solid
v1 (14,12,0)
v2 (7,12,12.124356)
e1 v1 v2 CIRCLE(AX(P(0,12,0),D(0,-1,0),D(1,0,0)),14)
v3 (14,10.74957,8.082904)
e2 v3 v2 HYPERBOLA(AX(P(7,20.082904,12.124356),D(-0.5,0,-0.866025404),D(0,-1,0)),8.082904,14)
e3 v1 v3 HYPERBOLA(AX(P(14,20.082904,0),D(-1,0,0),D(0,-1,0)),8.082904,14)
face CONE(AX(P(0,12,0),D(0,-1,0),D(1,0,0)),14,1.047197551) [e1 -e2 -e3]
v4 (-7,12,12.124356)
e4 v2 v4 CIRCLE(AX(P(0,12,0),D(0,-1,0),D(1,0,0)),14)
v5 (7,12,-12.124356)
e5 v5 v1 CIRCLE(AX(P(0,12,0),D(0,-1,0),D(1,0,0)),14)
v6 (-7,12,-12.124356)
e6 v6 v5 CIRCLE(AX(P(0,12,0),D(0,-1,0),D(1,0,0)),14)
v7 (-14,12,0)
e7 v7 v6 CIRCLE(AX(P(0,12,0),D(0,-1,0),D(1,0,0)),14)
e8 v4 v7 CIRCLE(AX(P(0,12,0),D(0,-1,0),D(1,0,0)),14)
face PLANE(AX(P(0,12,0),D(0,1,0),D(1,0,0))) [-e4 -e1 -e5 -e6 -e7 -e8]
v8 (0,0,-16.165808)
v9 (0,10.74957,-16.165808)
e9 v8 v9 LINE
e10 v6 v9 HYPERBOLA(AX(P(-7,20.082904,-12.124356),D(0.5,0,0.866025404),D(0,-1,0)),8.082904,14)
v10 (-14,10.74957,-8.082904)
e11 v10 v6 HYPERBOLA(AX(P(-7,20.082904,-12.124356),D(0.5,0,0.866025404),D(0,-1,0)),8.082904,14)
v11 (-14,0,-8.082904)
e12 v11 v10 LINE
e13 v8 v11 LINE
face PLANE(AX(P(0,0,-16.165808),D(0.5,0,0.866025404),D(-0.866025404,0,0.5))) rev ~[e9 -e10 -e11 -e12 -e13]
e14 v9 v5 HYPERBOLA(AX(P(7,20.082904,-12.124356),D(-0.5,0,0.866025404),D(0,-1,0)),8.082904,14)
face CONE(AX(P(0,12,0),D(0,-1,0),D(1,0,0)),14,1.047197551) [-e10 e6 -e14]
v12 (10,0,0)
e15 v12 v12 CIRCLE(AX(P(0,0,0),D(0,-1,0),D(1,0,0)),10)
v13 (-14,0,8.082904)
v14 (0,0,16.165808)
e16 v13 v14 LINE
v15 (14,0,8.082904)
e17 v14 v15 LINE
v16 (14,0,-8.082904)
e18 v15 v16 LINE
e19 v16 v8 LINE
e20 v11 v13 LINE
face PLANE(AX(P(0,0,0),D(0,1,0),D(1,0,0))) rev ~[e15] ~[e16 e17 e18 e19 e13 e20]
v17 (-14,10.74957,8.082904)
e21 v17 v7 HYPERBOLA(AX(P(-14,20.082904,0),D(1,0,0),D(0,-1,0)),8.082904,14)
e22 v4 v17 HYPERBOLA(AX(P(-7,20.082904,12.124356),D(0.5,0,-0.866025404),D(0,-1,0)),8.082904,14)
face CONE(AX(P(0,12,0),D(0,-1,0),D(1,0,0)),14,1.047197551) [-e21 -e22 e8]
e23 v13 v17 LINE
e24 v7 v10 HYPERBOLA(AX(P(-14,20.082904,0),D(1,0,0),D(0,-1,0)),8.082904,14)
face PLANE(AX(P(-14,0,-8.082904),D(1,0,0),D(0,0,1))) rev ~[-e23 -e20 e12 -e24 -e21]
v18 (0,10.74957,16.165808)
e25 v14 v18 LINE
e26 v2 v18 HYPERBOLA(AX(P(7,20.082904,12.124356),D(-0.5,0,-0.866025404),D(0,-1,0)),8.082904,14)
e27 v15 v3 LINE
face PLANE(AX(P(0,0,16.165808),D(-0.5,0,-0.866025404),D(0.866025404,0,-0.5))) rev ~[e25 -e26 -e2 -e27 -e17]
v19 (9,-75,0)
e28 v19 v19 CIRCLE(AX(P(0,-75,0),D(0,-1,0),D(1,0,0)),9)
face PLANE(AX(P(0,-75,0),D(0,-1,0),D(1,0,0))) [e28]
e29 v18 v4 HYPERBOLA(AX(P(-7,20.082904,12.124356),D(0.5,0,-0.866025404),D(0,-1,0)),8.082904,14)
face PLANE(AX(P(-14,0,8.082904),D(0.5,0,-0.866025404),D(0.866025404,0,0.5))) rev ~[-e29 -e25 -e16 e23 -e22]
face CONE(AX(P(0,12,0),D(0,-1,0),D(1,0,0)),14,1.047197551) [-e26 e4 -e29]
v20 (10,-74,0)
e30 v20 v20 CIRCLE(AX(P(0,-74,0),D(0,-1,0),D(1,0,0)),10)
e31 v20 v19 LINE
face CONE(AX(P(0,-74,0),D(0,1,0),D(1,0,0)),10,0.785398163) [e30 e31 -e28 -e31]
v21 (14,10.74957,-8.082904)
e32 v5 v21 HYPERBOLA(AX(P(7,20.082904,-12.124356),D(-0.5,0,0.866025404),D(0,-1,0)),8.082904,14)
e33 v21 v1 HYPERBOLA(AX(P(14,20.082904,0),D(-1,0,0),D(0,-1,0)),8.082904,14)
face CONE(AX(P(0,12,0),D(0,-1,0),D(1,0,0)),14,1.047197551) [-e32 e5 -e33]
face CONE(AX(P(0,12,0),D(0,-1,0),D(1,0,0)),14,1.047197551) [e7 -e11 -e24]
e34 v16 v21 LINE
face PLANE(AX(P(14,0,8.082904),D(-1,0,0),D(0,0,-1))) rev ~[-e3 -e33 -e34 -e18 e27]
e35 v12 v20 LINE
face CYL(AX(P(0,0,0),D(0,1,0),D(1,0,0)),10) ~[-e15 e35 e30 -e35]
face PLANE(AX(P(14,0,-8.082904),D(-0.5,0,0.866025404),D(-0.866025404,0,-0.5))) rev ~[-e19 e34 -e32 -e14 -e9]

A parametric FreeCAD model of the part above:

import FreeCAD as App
import Part
import Sketcher

V = App.Vector
Q = App.Units.Quantity


def edges_at(feature, points):
    """Names of the edges that pass closest to the given points."""
    edges = feature.Shape.Edges
    near = lambda p: min(range(len(edges)), key=lambda i: edges[i].distToShape(Part.Vertex(*p))[0])
    return sorted({f"Edge{near(p) + 1}" for p in points})

doc = App.newDocument("Part")
body = doc.addObject("PartDesign::Body", "Body")

sketch1 = body.newObject("Sketcher::SketchObject", "Sketch")
sketch1.AttachmentSupport = (doc.getObject("XZ_Plane"), [""])
sketch1.MapMode = "FlatFace"
sketch1.addGeometry(Part.LineSegment(V(0, -16, 0), V(-14, -8, 0)), False)
sketch1.addGeometry(Part.LineSegment(V(-14, -8, 0), V(-14, 8, 0)), False)
sketch1.addGeometry(Part.LineSegment(V(-14, 8, 0), V(0, 16, 0)), False)
sketch1.addGeometry(Part.LineSegment(V(0, 16, 0), V(14, 8, 0)), False)
sketch1.addGeometry(Part.LineSegment(V(14, 8, 0), V(14, -8, 0)), False)
sketch1.addGeometry(Part.LineSegment(V(14, -8, 0), V(0, -16, 0)), False)
sketch1.addConstraint(Sketcher.Constraint("Coincident", 0, 2, 1, 1))
sketch1.addConstraint(Sketcher.Constraint("Coincident", 1, 2, 2, 1))
sketch1.addConstraint(Sketcher.Constraint("Coincident", 2, 2, 3, 1))
sketch1.addConstraint(Sketcher.Constraint("Coincident", 3, 2, 4, 1))
sketch1.addConstraint(Sketcher.Constraint("Coincident", 4, 2, 5, 1))
sketch1.addConstraint(Sketcher.Constraint("Coincident", 5, 2, 0, 1))
sketch1.addConstraint(Sketcher.Constraint("Vertical", 1))
sketch1.addConstraint(Sketcher.Constraint("Vertical", 4))
sketch1.addConstraint(Sketcher.Constraint("Symmetric", 0, 2, 3, 2, -1, 1))
sketch1.addConstraint(Sketcher.Constraint("Symmetric", 2, 2, 5, 2, -1, 1))
sketch1.addConstraint(Sketcher.Constraint("PointOnObject", 2, 2, -2))
sketch1.addConstraint(Sketcher.Constraint("Parallel", 2, 5))
sketch1.addConstraint(Sketcher.Constraint("Horizontal", 1, 2, 3, 2))
sketch1.addConstraint(Sketcher.Constraint("Angle", 0, Q("150 deg")))
sketch1.addConstraint(Sketcher.Constraint("DistanceX", 0, 2, -1, 1, Q("14 mm")))
sketch1.addConstraint(Sketcher.Constraint("DistanceY", 1, 1, 1, 2, Q("16.165808 mm")))
pad1 = body.newObject("PartDesign::Pad", "Pad")
pad1.Profile = sketch1
pad1.Length = 12
pad1.Reversed = True

sketch2 = body.newObject("Sketcher::SketchObject", "Sketch001")
sketch2.AttachmentSupport = (doc.getObject("XZ_Plane"), [""])
sketch2.MapMode = "FlatFace"
sketch2.AttachmentOffset = App.Placement(V(0, 0, -12), App.Rotation())
sketch2.addGeometry(Part.LineSegment(V(-40, -42, 0), V(-40, 42, 0)), False)
sketch2.addGeometry(Part.LineSegment(V(-40, 42, 0), V(40, 42, 0)), False)
sketch2.addGeometry(Part.LineSegment(V(40, 42, 0), V(40, -42, 0)), False)
sketch2.addGeometry(Part.LineSegment(V(40, -42, 0), V(-40, -42, 0)), False)
sketch2.addGeometry(Part.Circle(V(0, 0, 0), V(0, 0, 1), 14), False)
sketch2.addConstraint(Sketcher.Constraint("Coincident", 0, 2, 1, 1))
sketch2.addConstraint(Sketcher.Constraint("Coincident", 1, 2, 2, 1))
sketch2.addConstraint(Sketcher.Constraint("Coincident", 2, 2, 3, 1))
sketch2.addConstraint(Sketcher.Constraint("Coincident", 3, 2, 0, 1))
sketch2.addConstraint(Sketcher.Constraint("Vertical", 0))
sketch2.addConstraint(Sketcher.Constraint("Horizontal", 1))
sketch2.addConstraint(Sketcher.Constraint("Vertical", 2))
sketch2.addConstraint(Sketcher.Constraint("Horizontal", 3))
sketch2.addConstraint(Sketcher.Constraint("Coincident", 4, 3, -1, 1))
sketch2.addConstraint(Sketcher.Constraint("Symmetric", 0, 2, 2, 2, -1, 1))
sketch2.addConstraint(Sketcher.Constraint("Diameter", 4, Q("28 mm")))
sketch2.addConstraint(Sketcher.Constraint("DistanceX", 1, 1, 1, 2, Q("80.454 mm")))
sketch2.addConstraint(Sketcher.Constraint("DistanceY", 0, 1, 0, 2, Q("84.786 mm")))
pocket1 = body.newObject("PartDesign::Pocket", "Pocket")
pocket1.Profile = sketch2
pocket1.Length = 12
pocket1.Reversed = True
pocket1.TaperAngle = 60

sketch3 = body.newObject("Sketcher::SketchObject", "Sketch002")
sketch3.AttachmentSupport = (doc.getObject("XZ_Plane"), [""])
sketch3.MapMode = "FlatFace"
sketch3.addGeometry(Part.Circle(V(0, 0, 0), V(0, 0, 1), 10), False)
sketch3.addConstraint(Sketcher.Constraint("Coincident", 0, 3, -1, 1))
sketch3.addConstraint(Sketcher.Constraint("Diameter", 0, Q("20 mm")))
pad2 = body.newObject("PartDesign::Pad", "Pad001")
pad2.Profile = sketch3
pad2.Length = 75
doc.recompute()

chamfer = body.newObject("PartDesign::Chamfer", "Chamfer")
chamfer.Base = (pad2, edges_at(pad2, [(-10, -75, 0)]))
chamfer.Size = 1

doc.recompute()
